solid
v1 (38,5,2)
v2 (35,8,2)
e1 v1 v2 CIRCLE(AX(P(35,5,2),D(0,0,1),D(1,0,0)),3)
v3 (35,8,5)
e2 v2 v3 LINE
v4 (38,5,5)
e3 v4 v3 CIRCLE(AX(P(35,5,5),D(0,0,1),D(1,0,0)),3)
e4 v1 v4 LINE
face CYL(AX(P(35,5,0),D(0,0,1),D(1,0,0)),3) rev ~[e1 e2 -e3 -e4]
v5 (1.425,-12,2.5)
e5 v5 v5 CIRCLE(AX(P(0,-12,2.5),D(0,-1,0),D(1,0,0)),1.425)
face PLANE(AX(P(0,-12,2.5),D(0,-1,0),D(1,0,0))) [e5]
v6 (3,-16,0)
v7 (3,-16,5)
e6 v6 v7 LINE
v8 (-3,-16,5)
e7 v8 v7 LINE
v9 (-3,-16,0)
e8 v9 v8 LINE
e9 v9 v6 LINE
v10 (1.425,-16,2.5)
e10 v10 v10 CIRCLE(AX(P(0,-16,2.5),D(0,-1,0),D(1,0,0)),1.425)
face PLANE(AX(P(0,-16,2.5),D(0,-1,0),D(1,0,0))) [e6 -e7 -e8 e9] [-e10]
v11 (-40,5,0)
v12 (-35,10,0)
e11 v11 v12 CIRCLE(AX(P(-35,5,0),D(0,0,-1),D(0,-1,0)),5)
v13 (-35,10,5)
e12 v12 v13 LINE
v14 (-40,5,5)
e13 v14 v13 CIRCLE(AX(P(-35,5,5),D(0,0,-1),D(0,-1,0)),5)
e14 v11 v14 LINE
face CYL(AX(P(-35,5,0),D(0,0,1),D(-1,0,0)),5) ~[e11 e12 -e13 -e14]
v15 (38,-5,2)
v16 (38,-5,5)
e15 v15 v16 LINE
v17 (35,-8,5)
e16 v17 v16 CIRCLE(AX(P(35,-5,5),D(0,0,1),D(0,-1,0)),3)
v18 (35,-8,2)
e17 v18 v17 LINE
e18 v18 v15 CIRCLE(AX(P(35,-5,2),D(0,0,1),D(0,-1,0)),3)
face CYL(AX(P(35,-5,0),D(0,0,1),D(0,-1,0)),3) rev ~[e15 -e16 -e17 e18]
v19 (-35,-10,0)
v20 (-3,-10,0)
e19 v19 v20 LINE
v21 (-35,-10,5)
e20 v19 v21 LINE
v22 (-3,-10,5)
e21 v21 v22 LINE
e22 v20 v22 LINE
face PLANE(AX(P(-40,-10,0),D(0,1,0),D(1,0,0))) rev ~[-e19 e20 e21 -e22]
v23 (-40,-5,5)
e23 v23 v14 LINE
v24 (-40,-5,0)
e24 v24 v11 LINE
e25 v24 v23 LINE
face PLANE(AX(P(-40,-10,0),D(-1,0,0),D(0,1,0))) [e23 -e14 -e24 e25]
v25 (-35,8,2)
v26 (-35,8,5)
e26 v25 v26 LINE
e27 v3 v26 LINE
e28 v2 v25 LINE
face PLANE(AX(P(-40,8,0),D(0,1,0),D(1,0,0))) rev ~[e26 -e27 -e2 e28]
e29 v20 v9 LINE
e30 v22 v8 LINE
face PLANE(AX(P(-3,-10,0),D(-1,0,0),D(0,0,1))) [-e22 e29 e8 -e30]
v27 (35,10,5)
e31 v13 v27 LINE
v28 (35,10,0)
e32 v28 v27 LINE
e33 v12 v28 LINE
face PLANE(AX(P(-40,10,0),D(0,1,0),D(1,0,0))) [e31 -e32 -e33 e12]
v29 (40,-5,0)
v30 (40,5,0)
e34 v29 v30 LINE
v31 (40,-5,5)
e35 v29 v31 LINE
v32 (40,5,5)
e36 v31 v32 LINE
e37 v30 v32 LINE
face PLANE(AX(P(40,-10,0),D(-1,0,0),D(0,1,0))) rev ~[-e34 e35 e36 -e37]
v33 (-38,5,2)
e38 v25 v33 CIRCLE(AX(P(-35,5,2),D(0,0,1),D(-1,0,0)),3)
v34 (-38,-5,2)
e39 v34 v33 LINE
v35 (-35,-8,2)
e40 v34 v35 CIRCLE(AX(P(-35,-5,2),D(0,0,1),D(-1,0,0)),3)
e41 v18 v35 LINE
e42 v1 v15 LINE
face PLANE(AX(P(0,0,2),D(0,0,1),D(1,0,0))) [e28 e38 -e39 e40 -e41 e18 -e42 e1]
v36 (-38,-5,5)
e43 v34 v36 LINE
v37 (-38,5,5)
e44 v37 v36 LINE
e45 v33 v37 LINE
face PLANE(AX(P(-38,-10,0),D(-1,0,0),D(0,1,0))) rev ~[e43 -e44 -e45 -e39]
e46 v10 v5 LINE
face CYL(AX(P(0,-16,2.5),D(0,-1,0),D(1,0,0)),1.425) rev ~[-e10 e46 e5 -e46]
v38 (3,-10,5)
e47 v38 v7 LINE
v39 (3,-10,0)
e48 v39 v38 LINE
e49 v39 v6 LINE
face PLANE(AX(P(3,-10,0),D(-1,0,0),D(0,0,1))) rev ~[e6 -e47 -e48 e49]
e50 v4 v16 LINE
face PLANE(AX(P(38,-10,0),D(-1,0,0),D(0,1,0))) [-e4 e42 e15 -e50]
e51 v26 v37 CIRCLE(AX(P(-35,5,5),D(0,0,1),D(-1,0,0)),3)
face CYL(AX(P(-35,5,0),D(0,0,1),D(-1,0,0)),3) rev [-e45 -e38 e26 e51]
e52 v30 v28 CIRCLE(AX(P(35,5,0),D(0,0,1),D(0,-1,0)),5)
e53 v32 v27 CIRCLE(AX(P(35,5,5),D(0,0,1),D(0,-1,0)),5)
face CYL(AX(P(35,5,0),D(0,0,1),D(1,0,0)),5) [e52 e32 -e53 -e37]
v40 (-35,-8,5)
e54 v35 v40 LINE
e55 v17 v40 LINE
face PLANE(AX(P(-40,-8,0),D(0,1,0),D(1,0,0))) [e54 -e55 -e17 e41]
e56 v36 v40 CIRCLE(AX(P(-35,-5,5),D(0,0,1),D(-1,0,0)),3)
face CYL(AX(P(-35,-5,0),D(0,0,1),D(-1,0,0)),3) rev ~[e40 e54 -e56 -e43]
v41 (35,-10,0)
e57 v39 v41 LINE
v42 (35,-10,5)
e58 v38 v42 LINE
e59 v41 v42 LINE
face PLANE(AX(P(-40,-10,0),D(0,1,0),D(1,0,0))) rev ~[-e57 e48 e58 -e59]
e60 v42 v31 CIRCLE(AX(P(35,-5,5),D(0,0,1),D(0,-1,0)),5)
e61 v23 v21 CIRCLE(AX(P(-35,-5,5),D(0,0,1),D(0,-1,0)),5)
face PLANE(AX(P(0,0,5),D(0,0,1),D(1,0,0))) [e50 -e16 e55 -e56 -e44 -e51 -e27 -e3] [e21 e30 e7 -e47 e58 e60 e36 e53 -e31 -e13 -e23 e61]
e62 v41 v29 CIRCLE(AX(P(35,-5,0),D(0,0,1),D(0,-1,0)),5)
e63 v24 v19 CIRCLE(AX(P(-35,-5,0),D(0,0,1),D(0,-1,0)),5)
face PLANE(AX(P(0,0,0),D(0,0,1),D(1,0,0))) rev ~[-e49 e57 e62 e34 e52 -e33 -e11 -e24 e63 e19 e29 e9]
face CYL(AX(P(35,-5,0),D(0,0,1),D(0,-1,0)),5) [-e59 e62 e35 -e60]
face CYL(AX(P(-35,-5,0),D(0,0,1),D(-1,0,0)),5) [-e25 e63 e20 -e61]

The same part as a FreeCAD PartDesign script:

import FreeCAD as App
import Part
import Sketcher


def edges_at(feature, points):
    """Names of the edges that pass closest to the given points."""
    edges = feature.Shape.Edges
    near = lambda p: min(range(len(edges)), key=lambda i: edges[i].distToShape(Part.Vertex(*p))[0])
    return sorted({f"Edge{near(p) + 1}" for p in points})


def faces_at(feature, points):
    """Names of the faces that lie closest to the given points."""
    faces = feature.Shape.Faces
    near = lambda p: min(range(len(faces)), key=lambda i: faces[i].distToShape(Part.Vertex(*p))[0])
    return sorted({f"Face{near(p) + 1}" for p in points})

doc = App.newDocument("Part")
body = doc.addObject("PartDesign::Body", "Body")

# Sketch on XY plane
sketch1 = body.newObject("Sketcher::SketchObject", "Sketch")
sketch1.AttachmentSupport = (doc.getObject("XY_Plane"), [""])
sketch1.MapMode = "FlatFace"
sketch1.addGeometry(Part.LineSegment(App.Vector(-40, 10, 0), App.Vector(-40, -10, 0)), False)
sketch1.addGeometry(Part.LineSegment(App.Vector(-40, -10, 0), App.Vector(40, -10, 0)), False)
sketch1.addGeometry(Part.LineSegment(App.Vector(40, -10, 0), App.Vector(40, 10, 0)), False)
sketch1.addGeometry(Part.LineSegment(App.Vector(40, 10, 0), App.Vector(-40, 10, 0)), False)
sketch1.addConstraint(Sketcher.Constraint("Coincident", 0, 2, 1, 1))
sketch1.addConstraint(Sketcher.Constraint("Coincident", 1, 2, 2, 1))
sketch1.addConstraint(Sketcher.Constraint("Coincident", 2, 2, 3, 1))
sketch1.addConstraint(Sketcher.Constraint("Coincident", 3, 2, 0, 1))
sketch1.addConstraint(Sketcher.Constraint("Vertical", 0))
sketch1.addConstraint(Sketcher.Constraint("Horizontal", 1))
sketch1.addConstraint(Sketcher.Constraint("Vertical", 2))
sketch1.addConstraint(Sketcher.Constraint("Horizontal", 3))
sketch1.addConstraint(Sketcher.Constraint("Symmetric", 0, 2, 2, 2, -1, 1))
sketch1.addConstraint(Sketcher.Constraint("DistanceX", 1, 1, 1, 2, 80.0))
sketch1.addConstraint(Sketcher.Constraint("DistanceY", 0, 2, 0, 1, 20.0))
pad1 = body.newObject("PartDesign::Pad", "Pad")
pad1.Profile = sketch1
pad1.Length = 5
doc.recompute()

fillet = body.newObject("PartDesign::Fillet", "Fillet")
fillet.Base = (pad1, edges_at(pad1, [
    (-40, 10, 2.5),
    (40, 10, 2.5),
    (40, -10, 2.5),
    (-40, -10, 2.5),
]))
fillet.Radius = 5
doc.recompute()

thickness = body.newObject("PartDesign::Thickness", "Thickness")
thickness.Base = (fillet, faces_at(fillet, [(0, 0, 5)]))
thickness.Value = 2
thickness.Reversed = True
thickness.Join = "Intersection"

# Sketch on XZ plane
sketch2 = body.newObject("Sketcher::SketchObject", "Sketch001")
sketch2.AttachmentSupport = (doc.getObject("XZ_Plane"), [""])
sketch2.MapMode = "FlatFace"
sketch2.AttachmentOffset = App.Placement(App.Vector(0, 0, 10), App.Rotation())
sketch2.addGeometry(Part.LineSegment(App.Vector(-3, 5, 0), App.Vector(-3, 0, 0)), False)
sketch2.addGeometry(Part.LineSegment(App.Vector(-3, 0, 0), App.Vector(3, 0, 0)), False)
sketch2.addGeometry(Part.LineSegment(App.Vector(3, 0, 0), App.Vector(3, 5, 0)), False)
sketch2.addGeometry(Part.LineSegment(App.Vector(3, 5, 0), App.Vector(-3, 5, 0)), False)
sketch2.addConstraint(Sketcher.Constraint("Coincident", 0, 2, 1, 1))
sketch2.addConstraint(Sketcher.Constraint("Coincident", 1, 2, 2, 1))
sketch2.addConstraint(Sketcher.Constraint("Coincident", 2, 2, 3, 1))
sketch2.addConstraint(Sketcher.Constraint("Coincident", 3, 2, 0, 1))
sketch2.addConstraint(Sketcher.Constraint("Vertical", 0))
sketch2.addConstraint(Sketcher.Constraint("Horizontal", 1))
sketch2.addConstraint(Sketcher.Constraint("Vertical", 2))
sketch2.addConstraint(Sketcher.Constraint("Horizontal", 3))
sketch2.addConstraint(Sketcher.Constraint("Symmetric", 0, 2, 1, 2, -1, 1))
sketch2.addConstraint(Sketcher.Constraint("DistanceX", 1, 1, 1, 2, 6.0))
sketch2.addConstraint(Sketcher.Constraint("DistanceY", 0, 2, 0, 1, 5.0))
pad2 = body.newObject("PartDesign::Pad", "Pad001")
pad2.Profile = sketch2
pad2.Length = 6

# Sketch on XZ plane
sketch3 = body.newObject("Sketcher::SketchObject", "Sketch002")
sketch3.AttachmentSupport = (doc.getObject("XZ_Plane"), [""])
sketch3.MapMode = "FlatFace"
sketch3.AttachmentOffset = App.Placement(App.Vector(0, 0, 16), App.Rotation())
sketch3.addGeometry(Part.Circle(App.Vector(0, 2.5, 0), App.Vector(0, 0, 1), 1.4), False)
sketch3.addConstraint(Sketcher.Constraint("PointOnObject", 0, 3, -2))
sketch3.addConstraint(Sketcher.Constraint("Diameter", 0, 2.85))
sketch3.addConstraint(Sketcher.Constraint("DistanceY", -1, 1, 0, 3, 2.5))
pocket1 = body.newObject("PartDesign::Pocket", "Pocket")
pocket1.Profile = sketch3
pocket1.Length = 4

doc.recompute()
